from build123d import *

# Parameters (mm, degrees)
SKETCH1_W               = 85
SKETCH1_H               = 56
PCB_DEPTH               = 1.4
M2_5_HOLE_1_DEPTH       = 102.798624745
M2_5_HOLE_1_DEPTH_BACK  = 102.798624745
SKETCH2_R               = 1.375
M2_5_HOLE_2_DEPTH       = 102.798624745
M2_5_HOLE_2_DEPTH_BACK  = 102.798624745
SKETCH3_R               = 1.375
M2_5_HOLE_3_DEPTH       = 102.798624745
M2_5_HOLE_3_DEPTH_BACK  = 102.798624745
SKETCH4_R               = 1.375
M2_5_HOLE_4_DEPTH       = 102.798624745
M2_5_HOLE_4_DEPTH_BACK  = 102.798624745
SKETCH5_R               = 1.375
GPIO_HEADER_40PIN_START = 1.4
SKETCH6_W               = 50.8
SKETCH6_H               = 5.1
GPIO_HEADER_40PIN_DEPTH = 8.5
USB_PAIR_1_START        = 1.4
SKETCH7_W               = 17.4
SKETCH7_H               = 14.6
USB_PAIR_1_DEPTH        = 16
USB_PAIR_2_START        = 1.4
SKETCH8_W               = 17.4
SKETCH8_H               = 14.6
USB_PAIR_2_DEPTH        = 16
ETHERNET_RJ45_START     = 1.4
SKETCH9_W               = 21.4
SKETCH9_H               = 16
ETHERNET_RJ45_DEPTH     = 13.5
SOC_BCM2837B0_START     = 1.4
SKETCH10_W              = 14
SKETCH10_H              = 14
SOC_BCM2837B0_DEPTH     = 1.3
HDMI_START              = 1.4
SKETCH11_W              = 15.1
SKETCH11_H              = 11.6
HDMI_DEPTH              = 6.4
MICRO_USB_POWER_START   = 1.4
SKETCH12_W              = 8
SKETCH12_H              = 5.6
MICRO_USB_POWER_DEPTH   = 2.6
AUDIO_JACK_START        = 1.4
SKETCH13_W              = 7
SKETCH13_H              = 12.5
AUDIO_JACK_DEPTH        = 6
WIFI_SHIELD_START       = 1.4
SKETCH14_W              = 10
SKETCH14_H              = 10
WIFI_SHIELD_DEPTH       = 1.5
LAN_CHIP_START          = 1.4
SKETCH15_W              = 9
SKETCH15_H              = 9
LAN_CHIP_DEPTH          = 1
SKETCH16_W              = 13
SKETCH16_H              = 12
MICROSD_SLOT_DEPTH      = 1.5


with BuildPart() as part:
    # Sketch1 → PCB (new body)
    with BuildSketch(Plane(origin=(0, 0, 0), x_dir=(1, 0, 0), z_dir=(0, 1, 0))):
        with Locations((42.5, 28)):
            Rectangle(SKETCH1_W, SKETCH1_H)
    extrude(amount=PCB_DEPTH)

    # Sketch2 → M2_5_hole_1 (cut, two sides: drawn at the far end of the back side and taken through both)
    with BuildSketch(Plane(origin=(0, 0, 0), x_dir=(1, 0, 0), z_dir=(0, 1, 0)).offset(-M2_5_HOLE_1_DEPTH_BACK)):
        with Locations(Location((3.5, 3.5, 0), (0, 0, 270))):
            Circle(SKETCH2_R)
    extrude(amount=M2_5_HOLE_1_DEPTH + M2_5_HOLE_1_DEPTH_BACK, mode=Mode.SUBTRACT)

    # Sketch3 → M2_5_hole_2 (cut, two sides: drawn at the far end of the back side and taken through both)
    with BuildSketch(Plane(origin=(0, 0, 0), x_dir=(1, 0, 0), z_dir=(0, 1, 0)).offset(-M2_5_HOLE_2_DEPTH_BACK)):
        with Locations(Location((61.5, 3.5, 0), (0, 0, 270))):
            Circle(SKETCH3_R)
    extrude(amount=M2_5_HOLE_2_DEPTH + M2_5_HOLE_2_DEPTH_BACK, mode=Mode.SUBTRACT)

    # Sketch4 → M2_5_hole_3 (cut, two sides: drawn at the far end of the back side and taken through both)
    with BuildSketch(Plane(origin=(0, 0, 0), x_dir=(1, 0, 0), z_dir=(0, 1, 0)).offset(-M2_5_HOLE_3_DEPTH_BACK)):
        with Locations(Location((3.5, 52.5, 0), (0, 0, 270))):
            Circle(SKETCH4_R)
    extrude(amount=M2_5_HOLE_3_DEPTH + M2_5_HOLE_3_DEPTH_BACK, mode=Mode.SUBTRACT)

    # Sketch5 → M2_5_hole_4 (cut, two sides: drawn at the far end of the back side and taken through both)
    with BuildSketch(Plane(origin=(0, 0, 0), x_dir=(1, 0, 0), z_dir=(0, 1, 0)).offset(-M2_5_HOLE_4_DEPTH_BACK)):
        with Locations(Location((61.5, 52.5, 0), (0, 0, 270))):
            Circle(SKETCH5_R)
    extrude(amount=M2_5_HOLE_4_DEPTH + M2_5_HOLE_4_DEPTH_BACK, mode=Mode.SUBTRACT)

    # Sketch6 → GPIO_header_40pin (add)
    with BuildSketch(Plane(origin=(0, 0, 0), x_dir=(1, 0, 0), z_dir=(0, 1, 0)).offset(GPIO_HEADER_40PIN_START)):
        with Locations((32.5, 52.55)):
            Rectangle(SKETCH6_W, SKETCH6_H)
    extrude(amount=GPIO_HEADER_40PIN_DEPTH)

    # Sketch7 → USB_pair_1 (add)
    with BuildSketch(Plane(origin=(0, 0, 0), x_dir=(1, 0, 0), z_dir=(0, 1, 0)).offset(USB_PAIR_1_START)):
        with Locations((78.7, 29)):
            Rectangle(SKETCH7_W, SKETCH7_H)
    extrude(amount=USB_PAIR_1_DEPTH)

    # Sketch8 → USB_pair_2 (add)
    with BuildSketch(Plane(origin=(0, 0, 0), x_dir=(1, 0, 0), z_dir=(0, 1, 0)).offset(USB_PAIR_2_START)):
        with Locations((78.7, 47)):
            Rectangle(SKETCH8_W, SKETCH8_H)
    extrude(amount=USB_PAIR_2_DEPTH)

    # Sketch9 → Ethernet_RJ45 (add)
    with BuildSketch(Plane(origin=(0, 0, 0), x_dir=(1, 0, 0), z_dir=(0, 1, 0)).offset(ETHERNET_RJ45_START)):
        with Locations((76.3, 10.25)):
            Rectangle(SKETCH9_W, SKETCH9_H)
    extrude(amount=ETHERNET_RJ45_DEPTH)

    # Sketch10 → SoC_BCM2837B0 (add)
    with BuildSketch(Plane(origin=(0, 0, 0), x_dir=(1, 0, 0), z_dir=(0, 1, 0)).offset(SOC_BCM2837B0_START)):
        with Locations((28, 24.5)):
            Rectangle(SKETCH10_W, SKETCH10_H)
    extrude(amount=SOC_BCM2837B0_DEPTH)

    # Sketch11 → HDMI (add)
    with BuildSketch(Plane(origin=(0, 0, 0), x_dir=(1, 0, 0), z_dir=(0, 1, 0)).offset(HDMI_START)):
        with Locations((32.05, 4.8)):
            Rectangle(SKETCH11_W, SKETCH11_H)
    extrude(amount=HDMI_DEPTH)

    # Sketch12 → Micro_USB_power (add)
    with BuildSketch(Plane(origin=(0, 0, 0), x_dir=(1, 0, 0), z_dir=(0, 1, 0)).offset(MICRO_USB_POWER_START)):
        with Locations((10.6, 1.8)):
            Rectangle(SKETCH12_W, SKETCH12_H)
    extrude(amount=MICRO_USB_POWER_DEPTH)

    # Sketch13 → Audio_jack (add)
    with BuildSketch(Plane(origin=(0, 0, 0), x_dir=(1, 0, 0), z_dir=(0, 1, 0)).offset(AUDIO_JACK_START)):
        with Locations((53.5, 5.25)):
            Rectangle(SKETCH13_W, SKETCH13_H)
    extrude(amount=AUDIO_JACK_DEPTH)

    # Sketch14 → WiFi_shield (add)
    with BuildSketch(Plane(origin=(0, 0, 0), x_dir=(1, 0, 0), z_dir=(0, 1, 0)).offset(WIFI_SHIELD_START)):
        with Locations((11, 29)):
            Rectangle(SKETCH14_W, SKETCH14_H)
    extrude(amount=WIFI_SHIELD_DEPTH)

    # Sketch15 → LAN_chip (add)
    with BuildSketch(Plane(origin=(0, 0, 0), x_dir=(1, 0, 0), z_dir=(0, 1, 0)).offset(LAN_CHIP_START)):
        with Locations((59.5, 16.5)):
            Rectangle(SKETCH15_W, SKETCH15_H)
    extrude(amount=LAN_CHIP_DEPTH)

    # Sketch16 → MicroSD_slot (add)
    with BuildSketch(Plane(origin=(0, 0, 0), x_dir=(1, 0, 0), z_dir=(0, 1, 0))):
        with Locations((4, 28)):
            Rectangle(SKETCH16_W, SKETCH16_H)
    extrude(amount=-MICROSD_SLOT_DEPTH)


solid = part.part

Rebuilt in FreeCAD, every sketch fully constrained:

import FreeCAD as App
import Part
import Sketcher
from FreeCAD import Vector
Q = App.Units.Quantity


def add_polygon(sketch, points):
    """Adds a closed chain of lines whose ends are joined by coincident constraints."""
    first, n = sketch.GeometryCount, len(points)
    for a, b in zip(points, points[1:] + points[:1]):
        sketch.addGeometry(Part.LineSegment(App.Vector(*a, 0), App.Vector(*b, 0)), False)
    for i in range(n):
        sketch.addConstraint(Sketcher.Constraint("Coincident", first + i, 2, first + (i + 1) % n, 1))

doc = App.newDocument("Part")
body = doc.addObject("PartDesign::Body", "Body")

sketch1 = body.newObject("Sketcher::SketchObject", "Sketch")
sketch1.AttachmentSupport = (doc.getObject("XZ_Plane"), [""])
sketch1.MapMode = "FlatFace"
add_polygon(sketch1, [(0, -56), (0, 0), (85, 0), (85, -56)])
sketch1.addConstraint(Sketcher.Constraint("Vertical", 0))
sketch1.addConstraint(Sketcher.Constraint("Horizontal", 1))
sketch1.addConstraint(Sketcher.Constraint("Vertical", 2))
sketch1.addConstraint(Sketcher.Constraint("Horizontal", 3))
sketch1.addConstraint(Sketcher.Constraint("Coincident", 0, 2, -1, 1))
sketch1.addConstraint(Sketcher.Constraint("DistanceX", 1, 1, 1, 2, Q("85 mm")))
sketch1.addConstraint(Sketcher.Constraint("DistanceY", 0, 1, 0, 2, Q("56 mm")))
pad1 = body.newObject("PartDesign::Pad", "Pad")
pad1.Profile = sketch1
pad1.Length = 1.4
pad1.Reversed = True

sketch2 = body.newObject("Sketcher::SketchObject", "Sketch001")
sketch2.AttachmentSupport = (doc.getObject("XZ_Plane"), [""])
sketch2.MapMode = "FlatFace"
sketch2.addGeometry(Part.Circle(Vector(3.5, -3.5, 0), Vector(0, 0, 1), 1.375), False)
sketch2.addConstraint(Sketcher.Constraint("Diameter", 0, Q("2.75 mm")))
sketch2.addConstraint(Sketcher.Constraint("DistanceX", -1, 1, 0, 3, Q("3.5 mm")))
sketch2.addConstraint(Sketcher.Constraint("DistanceY", 0, 3, -1, 1, Q("3.5 mm")))
pocket1 = body.newObject("PartDesign::Pocket", "Pocket")
pocket1.Profile = sketch2
pocket1.Type = "ThroughAll"
pocket1.Midplane = True

sketch3 = body.newObject("Sketcher::SketchObject", "Sketch002")
sketch3.AttachmentSupport = (doc.getObject("XZ_Plane"), [""])
sketch3.MapMode = "FlatFace"
sketch3.addGeometry(Part.Circle(Vector(61.5, -3.5, 0), Vector(0, 0, 1), 1.375), False)
sketch3.addConstraint(Sketcher.Constraint("Diameter", 0, Q("2.75 mm")))
sketch3.addConstraint(Sketcher.Constraint("DistanceX", -1, 1, 0, 3, Q("61.5 mm")))
sketch3.addConstraint(Sketcher.Constraint("DistanceY", 0, 3, -1, 1, Q("3.5 mm")))
pocket2 = body.newObject("PartDesign::Pocket", "Pocket001")
pocket2.Profile = sketch3
pocket2.Type = "ThroughAll"
pocket2.Midplane = True

sketch4 = body.newObject("Sketcher::SketchObject", "Sketch003")
sketch4.AttachmentSupport = (doc.getObject("XZ_Plane"), [""])
sketch4.MapMode = "FlatFace"
sketch4.addGeometry(Part.Circle(Vector(3.5, -52.5, 0), Vector(0, 0, 1), 1.375), False)
sketch4.addConstraint(Sketcher.Constraint("Diameter", 0, Q("2.75 mm")))
sketch4.addConstraint(Sketcher.Constraint("DistanceX", -1, 1, 0, 3, Q("3.5 mm")))
sketch4.addConstraint(Sketcher.Constraint("DistanceY", 0, 3, -1, 1, Q("52.5 mm")))
pocket3 = body.newObject("PartDesign::Pocket", "Pocket002")
pocket3.Profile = sketch4
pocket3.Type = "ThroughAll"
pocket3.Midplane = True

sketch5 = body.newObject("Sketcher::SketchObject", "Sketch004")
sketch5.AttachmentSupport = (doc.getObject("XZ_Plane"), [""])
sketch5.MapMode = "FlatFace"
sketch5.addGeometry(Part.Circle(Vector(61.5, -52.5, 0), Vector(0, 0, 1), 1.375), False)
sketch5.addConstraint(Sketcher.Constraint("Diameter", 0, Q("2.75 mm")))
sketch5.addConstraint(Sketcher.Constraint("DistanceX", -1, 1, 0, 3, Q("61.5 mm")))
sketch5.addConstraint(Sketcher.Constraint("DistanceY", 0, 3, -1, 1, Q("52.5 mm")))
pocket4 = body.newObject("PartDesign::Pocket", "Pocket003")
pocket4.Profile = sketch5
pocket4.Type = "ThroughAll"
pocket4.Midplane = True

sketch6 = body.newObject("Sketcher::SketchObject", "Sketch005")
sketch6.AttachmentSupport = (doc.getObject("XZ_Plane"), [""])
sketch6.MapMode = "FlatFace"
sketch6.AttachmentOffset = App.Placement(Vector(0, 0, -1.4), App.Rotation())
add_polygon(sketch6, [(7.1, -55.1), (7.1, -50), (57.9, -50), (57.9, -55.1)])
sketch6.addConstraint(Sketcher.Constraint("Vertical", 0))
sketch6.addConstraint(Sketcher.Constraint("Horizontal", 1))
sketch6.addConstraint(Sketcher.Constraint("Vertical", 2))
sketch6.addConstraint(Sketcher.Constraint("Horizontal", 3))
sketch6.addConstraint(Sketcher.Constraint("DistanceX", 1, 1, 1, 2, Q("50.8 mm")))
sketch6.addConstraint(Sketcher.Constraint("DistanceY", 0, 1, 0, 2, Q("5.1 mm")))
sketch6.addConstraint(Sketcher.Constraint("DistanceY", 0, 2, -1, 1, Q("50 mm")))
sketch6.addConstraint(Sketcher.Constraint("DistanceX", -1, 1, 0, 2, Q("7.1 mm")))
pad2 = body.newObject("PartDesign::Pad", "Pad001")
pad2.Profile = sketch6
pad2.Length = 8.5
pad2.Reversed = True

sketch7 = body.newObject("Sketcher::SketchObject", "Sketch006")
sketch7.AttachmentSupport = (doc.getObject("XZ_Plane"), [""])
sketch7.MapMode = "FlatFace"
sketch7.AttachmentOffset = App.Placement(Vector(0, 0, -1.4), App.Rotation())
add_polygon(sketch7, [(70, -36.3), (70, -21.7), (87.4, -21.7), (87.4, -36.3)])
sketch7.addConstraint(Sketcher.Constraint("Vertical", 0))
sketch7.addConstraint(Sketcher.Constraint("Horizontal", 1))
sketch7.addConstraint(Sketcher.Constraint("Vertical", 2))
sketch7.addConstraint(Sketcher.Constraint("Horizontal", 3))
sketch7.addConstraint(Sketcher.Constraint("DistanceX", 1, 1, 1, 2, Q("17.4 mm")))
sketch7.addConstraint(Sketcher.Constraint("DistanceY", 0, 1, 0, 2, Q("14.6 mm")))
sketch7.addConstraint(Sketcher.Constraint("DistanceX", -1, 1, 0, 2, Q("70 mm")))
sketch7.addConstraint(Sketcher.Constraint("DistanceY", 0, 2, -1, 1, Q("21.7 mm")))
pad3 = body.newObject("PartDesign::Pad", "Pad002")
pad3.Profile = sketch7
pad3.Length = 16
pad3.Reversed = True

sketch8 = body.newObject("Sketcher::SketchObject", "Sketch007")
sketch8.AttachmentSupport = (doc.getObject("XZ_Plane"), [""])
sketch8.MapMode = "FlatFace"
sketch8.AttachmentOffset = App.Placement(Vector(0, 0, -1.4), App.Rotation())
add_polygon(sketch8, [(70, -54.3), (70, -39.7), (87.4, -39.7), (87.4, -54.3)])
sketch8.addConstraint(Sketcher.Constraint("Vertical", 0))
sketch8.addConstraint(Sketcher.Constraint("Horizontal", 1))
sketch8.addConstraint(Sketcher.Constraint("Vertical", 2))
sketch8.addConstraint(Sketcher.Constraint("Horizontal", 3))
sketch8.addConstraint(Sketcher.Constraint("DistanceX", 1, 1, 1, 2, Q("17.4 mm")))
sketch8.addConstraint(Sketcher.Constraint("DistanceY", 0, 1, 0, 2, Q("14.6 mm")))
sketch8.addConstraint(Sketcher.Constraint("DistanceX", -1, 1, 0, 2, Q("70 mm")))
sketch8.addConstraint(Sketcher.Constraint("DistanceY", 0, 2, -1, 1, Q("39.7 mm")))
pad4 = body.newObject("PartDesign::Pad", "Pad003")
pad4.Profile = sketch8
pad4.Length = 16
pad4.Reversed = True

sketch9 = body.newObject("Sketcher::SketchObject", "Sketch008")
sketch9.AttachmentSupport = (doc.getObject("XZ_Plane"), [""])
sketch9.MapMode = "FlatFace"
sketch9.AttachmentOffset = App.Placement(Vector(0, 0, -1.4), App.Rotation())
add_polygon(sketch9, [(65.6, -18.25), (65.6, -2.25), (87, -2.25), (87, -18.25)])
sketch9.addConstraint(Sketcher.Constraint("Vertical", 0))
sketch9.addConstraint(Sketcher.Constraint("Horizontal", 1))
sketch9.addConstraint(Sketcher.Constraint("Vertical", 2))
sketch9.addConstraint(Sketcher.Constraint("Horizontal", 3))
sketch9.addConstraint(Sketcher.Constraint("DistanceY", 0, 1, 0, 2, Q("16 mm")))
sketch9.addConstraint(Sketcher.Constraint("DistanceX", 1, 1, 1, 2, Q("21.4 mm")))
sketch9.addConstraint(Sketcher.Constraint("DistanceX", -1, 1, 1, 2, Q("87 mm")))
sketch9.addConstraint(Sketcher.Constraint("DistanceY", 0, 2, -1, 1, Q("2.25 mm")))
pad5 = body.newObject("PartDesign::Pad", "Pad004")
pad5.Profile = sketch9
pad5.Length = 13.5
pad5.Reversed = True

sketch10 = body.newObject("Sketcher::SketchObject", "Sketch009")
sketch10.AttachmentSupport = (doc.getObject("XZ_Plane"), [""])
sketch10.MapMode = "FlatFace"
sketch10.AttachmentOffset = App.Placement(Vector(0, 0, -1.4), App.Rotation())
add_polygon(sketch10, [(21, -31.5), (21, -17.5), (35, -17.5), (35, -31.5)])
sketch10.addConstraint(Sketcher.Constraint("Vertical", 0))
sketch10.addConstraint(Sketcher.Constraint("Horizontal", 1))
sketch10.addConstraint(Sketcher.Constraint("Vertical", 2))
sketch10.addConstraint(Sketcher.Constraint("Horizontal", 3))
sketch10.addConstraint(Sketcher.Constraint("Equal", 3, 0))
sketch10.addConstraint(Sketcher.Constraint("DistanceX", 1, 1, 1, 2, Q("14 mm")))
sketch10.addConstraint(Sketcher.Constraint("DistanceX", -1, 1, 0, 2, Q("21 mm")))
sketch10.addConstraint(Sketcher.Constraint("DistanceY", 0, 2, -1, 1, Q("17.5 mm")))
pad6 = body.newObject("PartDesign::Pad", "Pad005")
pad6.Profile = sketch10
pad6.Length = 1.3
pad6.Reversed = True

sketch11 = body.newObject("Sketcher::SketchObject", "Sketch010")
sketch11.AttachmentSupport = (doc.getObject("XZ_Plane"), [""])
sketch11.MapMode = "FlatFace"
sketch11.AttachmentOffset = App.Placement(Vector(0, 0, -1.4), App.Rotation())
add_polygon(sketch11, [(24.5, -10.6), (24.5, 1), (39.6, 1), (39.6, -10.6)])
sketch11.addConstraint(Sketcher.Constraint("Vertical", 0))
sketch11.addConstraint(Sketcher.Constraint("Horizontal", 1))
sketch11.addConstraint(Sketcher.Constraint("Vertical", 2))
sketch11.addConstraint(Sketcher.Constraint("Horizontal", 3))
sketch11.addConstraint(Sketcher.Constraint("DistanceX", 1, 1, 1, 2, Q("15.1 mm")))
sketch11.addConstraint(Sketcher.Constraint("DistanceY", 0, 1, 0, 2, Q("11.6 mm")))
sketch11.addConstraint(Sketcher.Constraint("DistanceY", -1, 1, 0, 2, Q("1 mm")))
sketch11.addConstraint(Sketcher.Constraint("DistanceX", -1, 1, 0, 2, Q("24.5 mm")))
pad7 = body.newObject("PartDesign::Pad", "Pad006")
pad7.Profile = sketch11
pad7.Length = 6.4
pad7.Reversed = True

sketch12 = body.newObject("Sketcher::SketchObject", "Sketch011")
sketch12.AttachmentSupport = (doc.getObject("XZ_Plane"), [""])
sketch12.MapMode = "FlatFace"
sketch12.AttachmentOffset = App.Placement(Vector(0, 0, -1.4), App.Rotation())
add_polygon(sketch12, [(6.6, -4.6), (6.6, 1), (14.6, 1), (14.6, -4.6)])
sketch12.addConstraint(Sketcher.Constraint("Vertical", 0))
sketch12.addConstraint(Sketcher.Constraint("Horizontal", 1))
sketch12.addConstraint(Sketcher.Constraint("Vertical", 2))
sketch12.addConstraint(Sketcher.Constraint("Horizontal", 3))
sketch12.addConstraint(Sketcher.Constraint("DistanceX", 1, 1, 1, 2, Q("8 mm")))
sketch12.addConstraint(Sketcher.Constraint("DistanceY", 0, 1, 0, 2, Q("5.6 mm")))
sketch12.addConstraint(Sketcher.Constraint("DistanceY", -1, 1, 0, 2, Q("1 mm")))
sketch12.addConstraint(Sketcher.Constraint("DistanceX", -1, 1, 0, 2, Q("6.6 mm")))
pad8 = body.newObject("PartDesign::Pad", "Pad007")
pad8.Profile = sketch12
pad8.Length = 2.6
pad8.Reversed = True

sketch13 = body.newObject("Sketcher::SketchObject", "Sketch012")
sketch13.AttachmentSupport = (doc.getObject("XZ_Plane"), [""])
sketch13.MapMode = "FlatFace"
sketch13.AttachmentOffset = App.Placement(Vector(0, 0, -1.4), App.Rotation())
add_polygon(sketch13, [(50, -11.5), (50, 1), (57, 1), (57, -11.5)])
sketch13.addConstraint(Sketcher.Constraint("Vertical", 0))
sketch13.addConstraint(Sketcher.Constraint("Horizontal", 1))
sketch13.addConstraint(Sketcher.Constraint("Vertical", 2))
sketch13.addConstraint(Sketcher.Constraint("Horizontal", 3))
sketch13.addConstraint(Sketcher.Constraint("DistanceX", 1, 1, 1, 2, Q("7 mm")))
sketch13.addConstraint(Sketcher.Constraint("DistanceY", 0, 1, 0, 2, Q("12.5 mm")))
sketch13.addConstraint(Sketcher.Constraint("DistanceX", -1, 1, 0, 2, Q("50 mm")))
sketch13.addConstraint(Sketcher.Constraint("DistanceY", -1, 1, 0, 2, Q("1 mm")))
pad9 = body.newObject("PartDesign::Pad", "Pad008")
pad9.Profile = sketch13
pad9.Length = 6
pad9.Reversed = True

sketch14 = body.newObject("Sketcher::SketchObject", "Sketch013")
sketch14.AttachmentSupport = (doc.getObject("XZ_Plane"), [""])
sketch14.MapMode = "FlatFace"
sketch14.AttachmentOffset = App.Placement(Vector(0, 0, -1.4), App.Rotation())
add_polygon(sketch14, [(6, -34), (6, -24), (16, -24), (16, -34)])
sketch14.addConstraint(Sketcher.Constraint("Vertical", 0))
sketch14.addConstraint(Sketcher.Constraint("Horizontal", 1))
sketch14.addConstraint(Sketcher.Constraint("Vertical", 2))
sketch14.addConstraint(Sketcher.Constraint("Horizontal", 3))
sketch14.addConstraint(Sketcher.Constraint("Equal", 3, 0))
sketch14.addConstraint(Sketcher.Constraint("DistanceX", 1, 1, 1, 2, Q("10 mm")))
sketch14.addConstraint(Sketcher.Constraint("DistanceX", -1, 1, 0, 2, Q("6 mm")))
sketch14.addConstraint(Sketcher.Constraint("DistanceY", 0, 2, -1, 1, Q("24 mm")))
pad10 = body.newObject("PartDesign::Pad", "Pad009")
pad10.Profile = sketch14
pad10.Length = 1.5
pad10.Reversed = True

sketch15 = body.newObject("Sketcher::SketchObject", "Sketch014")
sketch15.AttachmentSupport = (doc.getObject("XZ_Plane"), [""])
sketch15.MapMode = "FlatFace"
sketch15.AttachmentOffset = App.Placement(Vector(0, 0, -1.4), App.Rotation())
add_polygon(sketch15, [(55, -21), (55, -12), (64, -12), (64, -21)])
sketch15.addConstraint(Sketcher.Constraint("Vertical", 0))
sketch15.addConstraint(Sketcher.Constraint("Horizontal", 1))
sketch15.addConstraint(Sketcher.Constraint("Vertical", 2))
sketch15.addConstraint(Sketcher.Constraint("Horizontal", 3))
sketch15.addConstraint(Sketcher.Constraint("Equal", 3, 0))
sketch15.addConstraint(Sketcher.Constraint("DistanceX", 1, 1, 1, 2, Q("9 mm")))
sketch15.addConstraint(Sketcher.Constraint("DistanceX", -1, 1, 0, 2, Q("55 mm")))
sketch15.addConstraint(Sketcher.Constraint("DistanceY", 0, 2, -1, 1, Q("12 mm")))
pad11 = body.newObject("PartDesign::Pad", "Pad010")
pad11.Profile = sketch15
pad11.Length = 1
pad11.Reversed = True

sketch16 = body.newObject("Sketcher::SketchObject", "Sketch015")
sketch16.AttachmentSupport = (doc.getObject("XZ_Plane"), [""])
sketch16.MapMode = "FlatFace"
add_polygon(sketch16, [(-2.5, -34), (-2.5, -22), (10.5, -22), (10.5, -34)])
sketch16.addConstraint(Sketcher.Constraint("Vertical", 0))
sketch16.addConstraint(Sketcher.Constraint("Horizontal", 1))
sketch16.addConstraint(Sketcher.Constraint("Vertical", 2))
sketch16.addConstraint(Sketcher.Constraint("Horizontal", 3))
sketch16.addConstraint(Sketcher.Constraint("DistanceX", 1, 1, 1, 2, Q("13 mm")))
sketch16.addConstraint(Sketcher.Constraint("DistanceY", 0, 1, 0, 2, Q("12 mm")))
sketch16.addConstraint(Sketcher.Constraint("DistanceY", 0, 2, -1, 1, Q("22 mm")))
sketch16.addConstraint(Sketcher.Constraint("DistanceX", 0, 2, -1, 1, Q("2.5 mm")))
pad12 = body.newObject("PartDesign::Pad", "Pad011")
pad12.Profile = sketch16
pad12.Length = 1.5

doc.recompute()
